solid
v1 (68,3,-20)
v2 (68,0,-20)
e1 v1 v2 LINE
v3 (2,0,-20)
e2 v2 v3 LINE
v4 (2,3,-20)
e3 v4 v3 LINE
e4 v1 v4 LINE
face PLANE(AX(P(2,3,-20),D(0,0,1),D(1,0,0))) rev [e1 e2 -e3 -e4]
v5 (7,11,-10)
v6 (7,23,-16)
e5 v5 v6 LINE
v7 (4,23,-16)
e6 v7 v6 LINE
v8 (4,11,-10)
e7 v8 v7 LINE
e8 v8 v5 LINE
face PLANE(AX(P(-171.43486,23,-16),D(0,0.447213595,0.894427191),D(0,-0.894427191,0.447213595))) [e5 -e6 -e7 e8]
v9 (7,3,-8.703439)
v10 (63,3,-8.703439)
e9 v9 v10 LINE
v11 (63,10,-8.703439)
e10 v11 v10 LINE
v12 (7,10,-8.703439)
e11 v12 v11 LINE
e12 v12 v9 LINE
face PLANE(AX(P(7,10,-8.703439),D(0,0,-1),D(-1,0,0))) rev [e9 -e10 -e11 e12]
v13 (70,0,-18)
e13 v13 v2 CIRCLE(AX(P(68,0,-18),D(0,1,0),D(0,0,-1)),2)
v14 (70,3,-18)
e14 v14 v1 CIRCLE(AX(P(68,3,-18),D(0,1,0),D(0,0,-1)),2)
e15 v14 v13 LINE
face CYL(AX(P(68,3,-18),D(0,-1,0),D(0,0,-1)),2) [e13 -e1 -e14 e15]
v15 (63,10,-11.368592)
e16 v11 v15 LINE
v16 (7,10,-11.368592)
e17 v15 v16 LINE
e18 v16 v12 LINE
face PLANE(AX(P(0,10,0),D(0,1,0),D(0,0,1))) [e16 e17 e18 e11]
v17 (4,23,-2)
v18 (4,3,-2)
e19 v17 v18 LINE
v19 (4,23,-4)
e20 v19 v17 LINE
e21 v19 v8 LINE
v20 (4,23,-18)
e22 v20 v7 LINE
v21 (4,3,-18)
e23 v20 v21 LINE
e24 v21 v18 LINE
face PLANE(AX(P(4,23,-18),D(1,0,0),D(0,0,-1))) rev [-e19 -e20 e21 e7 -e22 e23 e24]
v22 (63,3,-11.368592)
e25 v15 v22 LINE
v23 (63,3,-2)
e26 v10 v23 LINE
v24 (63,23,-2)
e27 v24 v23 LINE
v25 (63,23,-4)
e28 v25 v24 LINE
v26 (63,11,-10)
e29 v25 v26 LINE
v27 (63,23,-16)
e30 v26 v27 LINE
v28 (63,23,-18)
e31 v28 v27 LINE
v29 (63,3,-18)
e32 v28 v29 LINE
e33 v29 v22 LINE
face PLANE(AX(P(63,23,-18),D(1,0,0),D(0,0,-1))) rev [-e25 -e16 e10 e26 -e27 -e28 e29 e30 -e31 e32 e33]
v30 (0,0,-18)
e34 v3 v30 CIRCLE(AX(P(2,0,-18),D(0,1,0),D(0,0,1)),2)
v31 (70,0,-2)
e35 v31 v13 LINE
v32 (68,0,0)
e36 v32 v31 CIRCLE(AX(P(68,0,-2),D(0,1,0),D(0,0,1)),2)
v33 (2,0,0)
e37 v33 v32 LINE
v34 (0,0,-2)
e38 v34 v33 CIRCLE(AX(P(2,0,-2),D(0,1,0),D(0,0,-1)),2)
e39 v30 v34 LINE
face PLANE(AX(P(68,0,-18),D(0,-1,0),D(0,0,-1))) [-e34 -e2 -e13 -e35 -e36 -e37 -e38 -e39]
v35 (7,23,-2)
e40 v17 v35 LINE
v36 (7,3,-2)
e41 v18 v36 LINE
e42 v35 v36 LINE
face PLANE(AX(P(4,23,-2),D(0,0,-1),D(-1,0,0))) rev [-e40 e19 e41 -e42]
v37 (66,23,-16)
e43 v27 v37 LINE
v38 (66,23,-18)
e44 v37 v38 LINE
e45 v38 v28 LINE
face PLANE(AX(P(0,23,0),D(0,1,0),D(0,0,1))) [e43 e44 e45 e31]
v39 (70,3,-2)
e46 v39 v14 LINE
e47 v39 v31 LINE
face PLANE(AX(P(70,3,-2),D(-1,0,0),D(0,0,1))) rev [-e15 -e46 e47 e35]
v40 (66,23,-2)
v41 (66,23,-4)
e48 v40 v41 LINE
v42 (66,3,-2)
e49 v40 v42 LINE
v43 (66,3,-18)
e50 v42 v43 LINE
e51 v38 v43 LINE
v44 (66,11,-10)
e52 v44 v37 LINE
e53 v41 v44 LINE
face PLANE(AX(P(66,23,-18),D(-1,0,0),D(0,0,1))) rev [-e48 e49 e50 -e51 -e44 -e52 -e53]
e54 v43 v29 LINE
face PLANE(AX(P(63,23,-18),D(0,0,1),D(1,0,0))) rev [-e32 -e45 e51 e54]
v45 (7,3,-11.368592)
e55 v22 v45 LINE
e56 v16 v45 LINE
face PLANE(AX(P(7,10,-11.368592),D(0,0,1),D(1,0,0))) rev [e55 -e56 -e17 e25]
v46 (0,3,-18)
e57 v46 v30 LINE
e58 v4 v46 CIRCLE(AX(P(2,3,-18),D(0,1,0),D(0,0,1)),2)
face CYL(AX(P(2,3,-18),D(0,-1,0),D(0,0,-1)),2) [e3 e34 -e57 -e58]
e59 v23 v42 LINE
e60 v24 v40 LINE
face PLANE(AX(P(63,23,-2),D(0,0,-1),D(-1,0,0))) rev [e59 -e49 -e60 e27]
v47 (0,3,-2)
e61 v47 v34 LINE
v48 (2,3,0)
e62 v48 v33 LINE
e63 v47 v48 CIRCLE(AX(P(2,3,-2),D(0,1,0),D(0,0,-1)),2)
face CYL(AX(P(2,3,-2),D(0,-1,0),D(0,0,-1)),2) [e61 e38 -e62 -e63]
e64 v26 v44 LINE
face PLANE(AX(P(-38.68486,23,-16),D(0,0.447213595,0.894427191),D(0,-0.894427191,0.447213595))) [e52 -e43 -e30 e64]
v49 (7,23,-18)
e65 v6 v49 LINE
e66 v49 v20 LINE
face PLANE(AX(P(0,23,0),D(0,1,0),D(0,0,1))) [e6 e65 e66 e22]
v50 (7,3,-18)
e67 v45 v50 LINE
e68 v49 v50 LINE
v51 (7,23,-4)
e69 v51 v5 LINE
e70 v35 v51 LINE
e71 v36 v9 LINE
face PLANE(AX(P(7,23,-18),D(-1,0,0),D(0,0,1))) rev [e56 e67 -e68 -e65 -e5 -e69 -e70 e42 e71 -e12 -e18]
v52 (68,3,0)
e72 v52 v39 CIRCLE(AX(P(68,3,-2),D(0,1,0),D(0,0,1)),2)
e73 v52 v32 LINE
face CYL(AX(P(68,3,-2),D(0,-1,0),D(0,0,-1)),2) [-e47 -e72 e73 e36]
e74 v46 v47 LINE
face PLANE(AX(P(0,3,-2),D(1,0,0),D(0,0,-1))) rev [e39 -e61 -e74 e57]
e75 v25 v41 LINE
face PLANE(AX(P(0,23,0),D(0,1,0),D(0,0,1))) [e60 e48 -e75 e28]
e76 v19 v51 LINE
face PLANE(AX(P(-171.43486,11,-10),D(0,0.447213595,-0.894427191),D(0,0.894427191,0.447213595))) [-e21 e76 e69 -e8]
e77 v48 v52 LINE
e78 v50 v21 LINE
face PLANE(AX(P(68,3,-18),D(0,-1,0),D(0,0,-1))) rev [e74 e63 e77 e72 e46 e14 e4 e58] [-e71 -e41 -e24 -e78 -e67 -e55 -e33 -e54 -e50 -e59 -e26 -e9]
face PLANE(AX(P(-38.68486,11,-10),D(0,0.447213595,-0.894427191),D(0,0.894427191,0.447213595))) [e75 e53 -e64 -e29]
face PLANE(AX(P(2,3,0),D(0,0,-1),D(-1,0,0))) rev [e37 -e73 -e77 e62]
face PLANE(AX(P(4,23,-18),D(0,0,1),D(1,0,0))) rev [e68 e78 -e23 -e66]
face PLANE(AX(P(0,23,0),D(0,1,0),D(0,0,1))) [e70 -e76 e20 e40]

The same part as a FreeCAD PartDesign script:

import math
import FreeCAD as App
import Part
import Sketcher

V = App.Vector


def add_polygon(sketch, points):
    """Adds a closed chain of lines whose ends are joined by coincident constraints."""
    first, n = sketch.GeometryCount, len(points)
    for a, b in zip(points, points[1:] + points[:1]):
        sketch.addGeometry(Part.LineSegment(App.Vector(*a, 0), App.Vector(*b, 0)), False)
    for i in range(n):
        sketch.addConstraint(Sketcher.Constraint("Coincident", first + i, 2, first + (i + 1) % n, 1))

doc = App.newDocument("Part")
body = doc.addObject("PartDesign::Body", "Body")

# Sketch on XZ plane
sketch1 = body.newObject("Sketcher::SketchObject", "Sketch")
sketch1.AttachmentSupport = (doc.getObject("XZ_Plane"), [""])
sketch1.MapMode = "FlatFace"
sketch1.addGeometry(Part.LineSegment(V(2, 0, 0), V(68, 0, 0)), False)
sketch1.addGeometry(Part.ArcOfCircle(Part.Circle(V(68, -2, 0), V(0, 0, 1), 2), math.radians(0), math.radians(90)), False)
sketch1.addGeometry(Part.LineSegment(V(70, -2, 0), V(70, -18, 0)), False)
sketch1.addGeometry(Part.ArcOfCircle(Part.Circle(V(68, -18, 0), V(0, 0, 1), 2), math.radians(-90), math.radians(0)), False)
sketch1.addGeometry(Part.LineSegment(V(68, -20, 0), V(2, -20, 0)), False)
sketch1.addGeometry(Part.ArcOfCircle(Part.Circle(V(2, -18, 0), V(0, 0, 1), 2), math.radians(-180), math.radians(-90)), False)
sketch1.addGeometry(Part.LineSegment(V(0, -18, 0), V(0, -2, 0)), False)
sketch1.addGeometry(Part.ArcOfCircle(Part.Circle(V(2, -2, 0), V(0, 0, 1), 2), math.radians(90), math.radians(180)), False)
sketch1.addConstraint(Sketcher.Constraint("Tangent", 0, 2, 1, 2))
sketch1.addConstraint(Sketcher.Constraint("Tangent", 1, 1, 2, 1))
sketch1.addConstraint(Sketcher.Constraint("Tangent", 2, 2, 3, 2))
sketch1.addConstraint(Sketcher.Constraint("Tangent", 3, 1, 4, 1))
sketch1.addConstraint(Sketcher.Constraint("Tangent", 4, 2, 5, 2))
sketch1.addConstraint(Sketcher.Constraint("Tangent", 5, 1, 6, 1))
sketch1.addConstraint(Sketcher.Constraint("Tangent", 6, 2, 7, 2))
sketch1.addConstraint(Sketcher.Constraint("Tangent", 7, 1, 0, 1))
sketch1.addConstraint(Sketcher.Constraint("Horizontal", 0))
sketch1.addConstraint(Sketcher.Constraint("Vertical", 2))
sketch1.addConstraint(Sketcher.Constraint("Horizontal", 4))
sketch1.addConstraint(Sketcher.Constraint("Vertical", 6))
sketch1.addConstraint(Sketcher.Constraint("Equal", 1, 3))
sketch1.addConstraint(Sketcher.Constraint("Equal", 3, 5))
sketch1.addConstraint(Sketcher.Constraint("Equal", 5, 7))
sketch1.addConstraint(Sketcher.Constraint("PointOnObject", 0, 2, -1))
sketch1.addConstraint(Sketcher.Constraint("PointOnObject", 5, 1, -2))
sketch1.addConstraint(Sketcher.Constraint("Radius", 1, 2.0))
sketch1.addConstraint(Sketcher.Constraint("DistanceX", 0, 1, 0, 2, 66.0))
sketch1.addConstraint(Sketcher.Constraint("DistanceY", 2, 2, 2, 1, 16.0))
pad1 = body.newObject("PartDesign::Pad", "Pad")
pad1.Profile = sketch1
pad1.Length = 3
pad1.Reversed = True

# Sketch on XZ plane
sketch2 = body.newObject("Sketcher::SketchObject", "Sketch001")
sketch2.AttachmentSupport = (doc.getObject("XZ_Plane"), [""])
sketch2.MapMode = "FlatFace"
sketch2.AttachmentOffset = App.Placement(V(0, 0, -3), App.Rotation())
add_polygon(sketch2, [(4, -18), (4, -2), (7, -2), (7, -18)])  # lines 0-3
sketch2.addConstraint(Sketcher.Constraint("Vertical", 0))
sketch2.addConstraint(Sketcher.Constraint("Horizontal", 1))
sketch2.addConstraint(Sketcher.Constraint("Vertical", 2))
sketch2.addConstraint(Sketcher.Constraint("Horizontal", 3))
sketch2.addConstraint(Sketcher.Constraint("DistanceX", 1, 1, 1, 2, 3.0))
sketch2.addConstraint(Sketcher.Constraint("DistanceY", 0, 1, 0, 2, 16.0))
sketch2.addConstraint(Sketcher.Constraint("DistanceX", -1, 1, 0, 2, 4.0))
sketch2.addConstraint(Sketcher.Constraint("DistanceY", 0, 2, -1, 1, 2.0))
pad2 = body.newObject("PartDesign::Pad", "Pad001")
pad2.Profile = sketch2
pad2.Length = 20
pad2.Reversed = True

# Sketch on YZ plane
sketch3 = body.newObject("Sketcher::SketchObject", "Sketch002")
sketch3.AttachmentSupport = (doc.getObject("YZ_Plane"), [""])
sketch3.MapMode = "FlatFace"
sketch3.AttachmentOffset = App.Placement(V(0, 0, 4), App.Rotation())
add_polygon(sketch3, [(82, -46), (23, -16), (11, -10), (23, -4), (82, 26), (214, 26), (214, -46)])  # lines 0-6
sketch3.addConstraint(Sketcher.Constraint("Horizontal", 4))
sketch3.addConstraint(Sketcher.Constraint("Vertical", 5))
sketch3.addConstraint(Sketcher.Constraint("Horizontal", 6))
sketch3.addConstraint(Sketcher.Constraint("Parallel", 0, 1))
sketch3.addConstraint(Sketcher.Constraint("Parallel", 2, 3))
sketch3.addConstraint(Sketcher.Constraint("Vertical", 0, 2, 2, 2))
sketch3.addConstraint(Sketcher.Constraint("Vertical", 3, 2, 6, 2))
sketch3.addConstraint(Sketcher.Constraint("Equal", 1, 2))
sketch3.addConstraint(Sketcher.Constraint("DistanceX", -1, 1, 0, 2, 23.0))
sketch3.addConstraint(Sketcher.Constraint("DistanceY", 0, 2, -1, 1, 16.0))
sketch3.addConstraint(Sketcher.Constraint("DistanceX", -1, 1, 1, 2, 11.0))
sketch3.addConstraint(Sketcher.Constraint("DistanceY", 1, 2, -1, 1, 10.0))
sketch3.addConstraint(Sketcher.Constraint("DistanceY", 5, 2, 5, 1, 71.064128))
sketch3.addConstraint(Sketcher.Constraint("DistanceX", 4, 1, 4, 2, 132.071406))
pocket1 = body.newObject("PartDesign::Pocket", "Pocket")
pocket1.Profile = sketch3
pocket1.Type = "ThroughAll"
pocket1.Midplane = True

# Sketch on XZ plane
sketch4 = body.newObject("Sketcher::SketchObject", "Sketch003")
sketch4.AttachmentSupport = (doc.getObject("XZ_Plane"), [""])
sketch4.MapMode = "FlatFace"
sketch4.AttachmentOffset = App.Placement(V(0, 0, -3), App.Rotation())
add_polygon(sketch4, [(63, -18), (63, -2), (66, -2), (66, -18)])  # lines 0-3
sketch4.addConstraint(Sketcher.Constraint("Vertical", 0))
sketch4.addConstraint(Sketcher.Constraint("Horizontal", 1))
sketch4.addConstraint(Sketcher.Constraint("Vertical", 2))
sketch4.addConstraint(Sketcher.Constraint("Horizontal", 3))
sketch4.addConstraint(Sketcher.Constraint("DistanceX", 1, 1, 1, 2, 3.0))
sketch4.addConstraint(Sketcher.Constraint("DistanceY", 0, 1, 0, 2, 16.0))
sketch4.addConstraint(Sketcher.Constraint("DistanceX", -1, 1, 0, 2, 63.0))
sketch4.addConstraint(Sketcher.Constraint("DistanceY", 0, 2, -1, 1, 2.0))
pad3 = body.newObject("PartDesign::Pad", "Pad002")
pad3.Profile = sketch4
pad3.Length = 20
pad3.Reversed = True

# Sketch on YZ plane
sketch5 = body.newObject("Sketcher::SketchObject", "Sketch004")
sketch5.AttachmentSupport = (doc.getObject("YZ_Plane"), [""])
sketch5.MapMode = "FlatFace"
sketch5.AttachmentOffset = App.Placement(V(0, 0, 63), App.Rotation())
add_polygon(sketch5, [(82, -46), (23, -16), (11, -10), (23, -4), (82, 26), (214, 26), (214, -46)])  # lines 0-6
sketch5.addConstraint(Sketcher.Constraint("Horizontal", 4))
sketch5.addConstraint(Sketcher.Constraint("Vertical", 5))
sketch5.addConstraint(Sketcher.Constraint("Horizontal", 6))
sketch5.addConstraint(Sketcher.Constraint("Parallel", 0, 1))
sketch5.addConstraint(Sketcher.Constraint("Parallel", 2, 3))
sketch5.addConstraint(Sketcher.Constraint("Vertical", 0, 2, 2, 2))
sketch5.addConstraint(Sketcher.Constraint("Vertical", 3, 2, 6, 2))
sketch5.addConstraint(Sketcher.Constraint("Equal", 1, 2))
sketch5.addConstraint(Sketcher.Constraint("DistanceX", -1, 1, 0, 2, 23.0))
sketch5.addConstraint(Sketcher.Constraint("DistanceY", 0, 2, -1, 1, 16.0))
sketch5.addConstraint(Sketcher.Constraint("DistanceX", -1, 1, 1, 2, 11.0))
sketch5.addConstraint(Sketcher.Constraint("DistanceY", 1, 2, -1, 1, 10.0))
sketch5.addConstraint(Sketcher.Constraint("DistanceY", 5, 2, 5, 1, 71.064128))
sketch5.addConstraint(Sketcher.Constraint("DistanceX", 4, 1, 4, 2, 132.071406))
pocket2 = body.newObject("PartDesign::Pocket", "Pocket001")
pocket2.Profile = sketch5
pocket2.Type = "ThroughAll"
pocket2.Midplane = True

# Sketch on XZ plane
sketch6 = body.newObject("Sketcher::SketchObject", "Sketch005")
sketch6.AttachmentSupport = (doc.getObject("XZ_Plane"), [""])
sketch6.MapMode = "FlatFace"
sketch6.AttachmentOffset = App.Placement(V(0, 0, -3), App.Rotation())
add_polygon(sketch6, [(7, -11.4), (7, -8.7), (63, -8.7), (63, -11.4)])  # lines 0-3
sketch6.addConstraint(Sketcher.Constraint("Vertical", 0))
sketch6.addConstraint(Sketcher.Constraint("Horizontal", 1))
sketch6.addConstraint(Sketcher.Constraint("Vertical", 2))
sketch6.addConstraint(Sketcher.Constraint("Horizontal", 3))
sketch6.addConstraint(Sketcher.Constraint("DistanceX", 1, 1, 1, 2, 56.0))
sketch6.addConstraint(Sketcher.Constraint("DistanceX", -1, 1, 0, 2, 7.0))
sketch6.addConstraint(Sketcher.Constraint("DistanceY", 0, 1, 0, 2, 2.665153))
sketch6.addConstraint(Sketcher.Constraint("DistanceY", 0, 2, -1, 1, 8.703439))
pad4 = body.newObject("PartDesign::Pad", "Pad003")
pad4.Profile = sketch6
pad4.Length = 7
pad4.Reversed = True

doc.recompute()
